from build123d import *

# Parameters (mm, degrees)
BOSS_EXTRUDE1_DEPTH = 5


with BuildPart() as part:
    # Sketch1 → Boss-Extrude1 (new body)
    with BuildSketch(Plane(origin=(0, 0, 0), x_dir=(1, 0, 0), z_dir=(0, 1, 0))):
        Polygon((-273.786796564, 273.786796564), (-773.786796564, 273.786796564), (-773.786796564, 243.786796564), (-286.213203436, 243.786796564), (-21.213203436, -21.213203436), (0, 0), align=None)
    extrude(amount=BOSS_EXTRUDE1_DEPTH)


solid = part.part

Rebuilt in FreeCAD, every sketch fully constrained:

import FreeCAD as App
import Part
import Sketcher
Q = App.Units.Quantity


def add_polygon(sketch, points):
    """Adds a closed chain of lines whose ends are joined by coincident constraints."""
    first, n = sketch.GeometryCount, len(points)
    for a, b in zip(points, points[1:] + points[:1]):
        sketch.addGeometry(Part.LineSegment(App.Vector(*a, 0), App.Vector(*b, 0)), False)
    for i in range(n):
        sketch.addConstraint(Sketcher.Constraint("Coincident", first + i, 2, first + (i + 1) % n, 1))

doc = App.newDocument("Part")
params = doc.addObject("Spreadsheet::Sheet", "Params")
for row, (alias, value) in enumerate([
    ("sketch1_width", "500 mm"),
    ("sketch1_height", "30 mm"),
    ("sketch1_length", "30 mm"),
    ("pad1_length", "5 mm"),
], start=1):
    params.set(f"A{row}", alias)
    params.set(f"B{row}", "=" + value)
    params.setAlias(f"B{row}", alias)

body = doc.addObject("PartDesign::Body", "Body")

# Sketch on XZ plane
sketch1 = doc.addObject("Sketcher::SketchObject", "Sketch")
body.addObject(sketch1)
sketch1.AttachmentSupport = (doc.XZ_Plane, [""])
sketch1.MapMode = "FlatFace"
add_polygon(sketch1, [(-274, -274), (-774, -274), (-774, -244), (-286, -244), (-21, 21), (0, 0)])  # lines 0-5
sketch1.addConstraint([
    Sketcher.Constraint("Horizontal", 0),
    Sketcher.Constraint("Vertical", 1),
    Sketcher.Constraint("Horizontal", 2),
    Sketcher.Constraint("Coincident", 4, 2, -1, 1),
    Sketcher.Constraint("Perpendicular", 3, 4),
    Sketcher.Constraint("Perpendicular", 4, 5),
    Sketcher.Constraint("DistanceX", 0, 2, 0, 1, Q("500 mm")),
    Sketcher.Constraint("DistanceY", 1, 1, 1, 2, Q("30 mm")),
    Sketcher.Constraint("Angle", 3, Q("45 deg")),
    Sketcher.Constraint("Distance", 4, Q("30 mm")),
    Sketcher.Constraint("DistanceX", 2, 2, 3, 2, Q("265 mm")),
])
sketch1.setExpression("Constraints[12]", "Params.sketch1_width")
sketch1.setExpression("Constraints[13]", "Params.sketch1_height")
sketch1.setExpression("Constraints[15]", "Params.sketch1_length")
pad1 = doc.addObject("PartDesign::Pad", "Pad")
body.addObject(pad1)
pad1.Profile = sketch1
pad1.setExpression("Length", "Params.pad1_length")
pad1.Reversed = True

doc.recompute()
